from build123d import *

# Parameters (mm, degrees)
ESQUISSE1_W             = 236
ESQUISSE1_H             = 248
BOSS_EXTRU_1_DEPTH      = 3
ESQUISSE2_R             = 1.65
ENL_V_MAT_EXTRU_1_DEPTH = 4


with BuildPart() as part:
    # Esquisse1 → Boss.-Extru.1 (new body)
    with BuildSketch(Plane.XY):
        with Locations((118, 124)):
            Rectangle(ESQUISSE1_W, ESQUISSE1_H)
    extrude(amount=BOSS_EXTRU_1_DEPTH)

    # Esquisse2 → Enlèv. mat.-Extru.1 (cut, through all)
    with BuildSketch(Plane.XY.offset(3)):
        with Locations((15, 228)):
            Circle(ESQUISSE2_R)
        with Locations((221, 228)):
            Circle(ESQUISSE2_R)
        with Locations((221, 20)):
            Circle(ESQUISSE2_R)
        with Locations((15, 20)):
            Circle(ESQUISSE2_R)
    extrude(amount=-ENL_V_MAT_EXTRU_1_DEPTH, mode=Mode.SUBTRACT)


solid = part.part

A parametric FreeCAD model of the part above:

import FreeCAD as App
import Part
import Sketcher


def add_polygon(sketch, points):
    """Adds a closed chain of lines whose ends are joined by coincident constraints."""
    first, n = sketch.GeometryCount, len(points)
    for a, b in zip(points, points[1:] + points[:1]):
        sketch.addGeometry(Part.LineSegment(App.Vector(*a, 0), App.Vector(*b, 0)), False)
    for i in range(n):
        sketch.addConstraint(Sketcher.Constraint("Coincident", first + i, 2, first + (i + 1) % n, 1))

doc = App.newDocument("Part")
body = doc.addObject("PartDesign::Body", "Body")

# Sketch on XY plane
sketch1 = body.newObject("Sketcher::SketchObject", "Sketch")
sketch1.AttachmentSupport = (doc.getObject("XY_Plane"), [""])
sketch1.MapMode = "FlatFace"
add_polygon(sketch1, [(0, 248), (0, 0), (236, 0), (236, 248)])  # lines 0-3
sketch1.addConstraint([
    Sketcher.Constraint("Vertical", 0),
    Sketcher.Constraint("Horizontal", 1),
    Sketcher.Constraint("Vertical", 2),
    Sketcher.Constraint("Horizontal", 3),
    Sketcher.Constraint("Coincident", 0, 2, -1, 1),
    Sketcher.Constraint("DistanceX", 1, 1, 1, 2, 236.0),
    Sketcher.Constraint("DistanceY", 0, 2, 0, 1, 248.0),
])
pad1 = body.newObject("PartDesign::Pad", "Pad")
pad1.Profile = sketch1
pad1.Length = 3

# Sketch on XY plane
sketch2 = body.newObject("Sketcher::SketchObject", "Sketch001")
sketch2.AttachmentSupport = (doc.getObject("XY_Plane"), [""])
sketch2.MapMode = "FlatFace"
sketch2.AttachmentOffset = App.Placement(App.Vector(0, 0, 3), App.Rotation())
sketch2.addGeometry([
    Part.Circle(App.Vector(15, 228, 0), App.Vector(0, 0, 1), 1.65),
    Part.Circle(App.Vector(221, 228, 0), App.Vector(0, 0, 1), 1.65),
    Part.Circle(App.Vector(221, 20, 0), App.Vector(0, 0, 1), 1.65),
    Part.Circle(App.Vector(15, 20, 0), App.Vector(0, 0, 1), 1.65),
], False)
sketch2.addConstraint([
    Sketcher.Constraint("Equal", 0, 1),
    Sketcher.Constraint("Equal", 1, 2),
    Sketcher.Constraint("Equal", 2, 3),
    Sketcher.Constraint("Horizontal", 0, 3, 1, 3),
    Sketcher.Constraint("Horizontal", 2, 3, 3, 3),
    Sketcher.Constraint("Vertical", 1, 3, 2, 3),
    Sketcher.Constraint("Vertical", 0, 3, 3, 3),
    Sketcher.Constraint("Diameter", 0, 3.3),
    Sketcher.Constraint("DistanceX", -1, 1, 0, 3, 15.0),
    Sketcher.Constraint("DistanceY", -1, 1, 0, 3, 228.0),
    Sketcher.Constraint("DistanceX", -1, 1, 1, 3, 221.0),
    Sketcher.Constraint("DistanceY", -1, 1, 2, 3, 20.0),
])
pocket1 = body.newObject("PartDesign::Pocket", "Pocket")
pocket1.Profile = sketch2
pocket1.Type = "ThroughAll"

doc.recompute()
